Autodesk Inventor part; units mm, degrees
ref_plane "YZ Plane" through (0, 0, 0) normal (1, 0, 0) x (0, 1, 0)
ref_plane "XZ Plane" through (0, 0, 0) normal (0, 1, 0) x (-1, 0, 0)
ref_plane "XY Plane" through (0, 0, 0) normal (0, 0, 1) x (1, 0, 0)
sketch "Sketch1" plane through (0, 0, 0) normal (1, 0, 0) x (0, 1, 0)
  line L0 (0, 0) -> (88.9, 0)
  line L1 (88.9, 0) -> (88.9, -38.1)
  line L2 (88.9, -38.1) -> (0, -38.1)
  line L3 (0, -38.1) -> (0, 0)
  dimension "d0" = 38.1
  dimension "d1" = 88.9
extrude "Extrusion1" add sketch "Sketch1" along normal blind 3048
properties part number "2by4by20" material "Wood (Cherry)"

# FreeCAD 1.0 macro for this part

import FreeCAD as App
import Part
import Sketcher

V = App.Vector
Q = App.Units.Quantity


def add_polygon(sketch, points):
    """Adds a closed chain of lines whose ends are joined by coincident constraints."""
    first, n = sketch.GeometryCount, len(points)
    for a, b in zip(points, points[1:] + points[:1]):
        sketch.addGeometry(Part.LineSegment(App.Vector(*a, 0), App.Vector(*b, 0)), False)
    for i in range(n):
        sketch.addConstraint(Sketcher.Constraint("Coincident", first + i, 2, first + (i + 1) % n, 1))

doc = App.newDocument("Part")
body = doc.addObject("PartDesign::Body", "Body")

sketch1 = body.newObject("Sketcher::SketchObject", "Sketch")
sketch1.AttachmentSupport = (doc.getObject("YZ_Plane"), [""])
sketch1.MapMode = "FlatFace"
add_polygon(sketch1, [(89, 0), (0, 0), (0, -38), (89, -38)])
sketch1.addConstraint([
    Sketcher.Constraint("Horizontal", 0),
    Sketcher.Constraint("Vertical", 1),
    Sketcher.Constraint("Horizontal", 2),
    Sketcher.Constraint("Vertical", 3),
    Sketcher.Constraint("Coincident", 0, 2, -1, 1),
    Sketcher.Constraint("DistanceX", 0, 2, 0, 1, Q("3.5 in")),
    Sketcher.Constraint("DistanceY", 1, 2, 1, 1, Q("1.5 in")),
])
pad1 = body.newObject("PartDesign::Pad", "Pad")
pad1.Profile = sketch1
pad1.Length = Q("120 in")

doc.recompute()
